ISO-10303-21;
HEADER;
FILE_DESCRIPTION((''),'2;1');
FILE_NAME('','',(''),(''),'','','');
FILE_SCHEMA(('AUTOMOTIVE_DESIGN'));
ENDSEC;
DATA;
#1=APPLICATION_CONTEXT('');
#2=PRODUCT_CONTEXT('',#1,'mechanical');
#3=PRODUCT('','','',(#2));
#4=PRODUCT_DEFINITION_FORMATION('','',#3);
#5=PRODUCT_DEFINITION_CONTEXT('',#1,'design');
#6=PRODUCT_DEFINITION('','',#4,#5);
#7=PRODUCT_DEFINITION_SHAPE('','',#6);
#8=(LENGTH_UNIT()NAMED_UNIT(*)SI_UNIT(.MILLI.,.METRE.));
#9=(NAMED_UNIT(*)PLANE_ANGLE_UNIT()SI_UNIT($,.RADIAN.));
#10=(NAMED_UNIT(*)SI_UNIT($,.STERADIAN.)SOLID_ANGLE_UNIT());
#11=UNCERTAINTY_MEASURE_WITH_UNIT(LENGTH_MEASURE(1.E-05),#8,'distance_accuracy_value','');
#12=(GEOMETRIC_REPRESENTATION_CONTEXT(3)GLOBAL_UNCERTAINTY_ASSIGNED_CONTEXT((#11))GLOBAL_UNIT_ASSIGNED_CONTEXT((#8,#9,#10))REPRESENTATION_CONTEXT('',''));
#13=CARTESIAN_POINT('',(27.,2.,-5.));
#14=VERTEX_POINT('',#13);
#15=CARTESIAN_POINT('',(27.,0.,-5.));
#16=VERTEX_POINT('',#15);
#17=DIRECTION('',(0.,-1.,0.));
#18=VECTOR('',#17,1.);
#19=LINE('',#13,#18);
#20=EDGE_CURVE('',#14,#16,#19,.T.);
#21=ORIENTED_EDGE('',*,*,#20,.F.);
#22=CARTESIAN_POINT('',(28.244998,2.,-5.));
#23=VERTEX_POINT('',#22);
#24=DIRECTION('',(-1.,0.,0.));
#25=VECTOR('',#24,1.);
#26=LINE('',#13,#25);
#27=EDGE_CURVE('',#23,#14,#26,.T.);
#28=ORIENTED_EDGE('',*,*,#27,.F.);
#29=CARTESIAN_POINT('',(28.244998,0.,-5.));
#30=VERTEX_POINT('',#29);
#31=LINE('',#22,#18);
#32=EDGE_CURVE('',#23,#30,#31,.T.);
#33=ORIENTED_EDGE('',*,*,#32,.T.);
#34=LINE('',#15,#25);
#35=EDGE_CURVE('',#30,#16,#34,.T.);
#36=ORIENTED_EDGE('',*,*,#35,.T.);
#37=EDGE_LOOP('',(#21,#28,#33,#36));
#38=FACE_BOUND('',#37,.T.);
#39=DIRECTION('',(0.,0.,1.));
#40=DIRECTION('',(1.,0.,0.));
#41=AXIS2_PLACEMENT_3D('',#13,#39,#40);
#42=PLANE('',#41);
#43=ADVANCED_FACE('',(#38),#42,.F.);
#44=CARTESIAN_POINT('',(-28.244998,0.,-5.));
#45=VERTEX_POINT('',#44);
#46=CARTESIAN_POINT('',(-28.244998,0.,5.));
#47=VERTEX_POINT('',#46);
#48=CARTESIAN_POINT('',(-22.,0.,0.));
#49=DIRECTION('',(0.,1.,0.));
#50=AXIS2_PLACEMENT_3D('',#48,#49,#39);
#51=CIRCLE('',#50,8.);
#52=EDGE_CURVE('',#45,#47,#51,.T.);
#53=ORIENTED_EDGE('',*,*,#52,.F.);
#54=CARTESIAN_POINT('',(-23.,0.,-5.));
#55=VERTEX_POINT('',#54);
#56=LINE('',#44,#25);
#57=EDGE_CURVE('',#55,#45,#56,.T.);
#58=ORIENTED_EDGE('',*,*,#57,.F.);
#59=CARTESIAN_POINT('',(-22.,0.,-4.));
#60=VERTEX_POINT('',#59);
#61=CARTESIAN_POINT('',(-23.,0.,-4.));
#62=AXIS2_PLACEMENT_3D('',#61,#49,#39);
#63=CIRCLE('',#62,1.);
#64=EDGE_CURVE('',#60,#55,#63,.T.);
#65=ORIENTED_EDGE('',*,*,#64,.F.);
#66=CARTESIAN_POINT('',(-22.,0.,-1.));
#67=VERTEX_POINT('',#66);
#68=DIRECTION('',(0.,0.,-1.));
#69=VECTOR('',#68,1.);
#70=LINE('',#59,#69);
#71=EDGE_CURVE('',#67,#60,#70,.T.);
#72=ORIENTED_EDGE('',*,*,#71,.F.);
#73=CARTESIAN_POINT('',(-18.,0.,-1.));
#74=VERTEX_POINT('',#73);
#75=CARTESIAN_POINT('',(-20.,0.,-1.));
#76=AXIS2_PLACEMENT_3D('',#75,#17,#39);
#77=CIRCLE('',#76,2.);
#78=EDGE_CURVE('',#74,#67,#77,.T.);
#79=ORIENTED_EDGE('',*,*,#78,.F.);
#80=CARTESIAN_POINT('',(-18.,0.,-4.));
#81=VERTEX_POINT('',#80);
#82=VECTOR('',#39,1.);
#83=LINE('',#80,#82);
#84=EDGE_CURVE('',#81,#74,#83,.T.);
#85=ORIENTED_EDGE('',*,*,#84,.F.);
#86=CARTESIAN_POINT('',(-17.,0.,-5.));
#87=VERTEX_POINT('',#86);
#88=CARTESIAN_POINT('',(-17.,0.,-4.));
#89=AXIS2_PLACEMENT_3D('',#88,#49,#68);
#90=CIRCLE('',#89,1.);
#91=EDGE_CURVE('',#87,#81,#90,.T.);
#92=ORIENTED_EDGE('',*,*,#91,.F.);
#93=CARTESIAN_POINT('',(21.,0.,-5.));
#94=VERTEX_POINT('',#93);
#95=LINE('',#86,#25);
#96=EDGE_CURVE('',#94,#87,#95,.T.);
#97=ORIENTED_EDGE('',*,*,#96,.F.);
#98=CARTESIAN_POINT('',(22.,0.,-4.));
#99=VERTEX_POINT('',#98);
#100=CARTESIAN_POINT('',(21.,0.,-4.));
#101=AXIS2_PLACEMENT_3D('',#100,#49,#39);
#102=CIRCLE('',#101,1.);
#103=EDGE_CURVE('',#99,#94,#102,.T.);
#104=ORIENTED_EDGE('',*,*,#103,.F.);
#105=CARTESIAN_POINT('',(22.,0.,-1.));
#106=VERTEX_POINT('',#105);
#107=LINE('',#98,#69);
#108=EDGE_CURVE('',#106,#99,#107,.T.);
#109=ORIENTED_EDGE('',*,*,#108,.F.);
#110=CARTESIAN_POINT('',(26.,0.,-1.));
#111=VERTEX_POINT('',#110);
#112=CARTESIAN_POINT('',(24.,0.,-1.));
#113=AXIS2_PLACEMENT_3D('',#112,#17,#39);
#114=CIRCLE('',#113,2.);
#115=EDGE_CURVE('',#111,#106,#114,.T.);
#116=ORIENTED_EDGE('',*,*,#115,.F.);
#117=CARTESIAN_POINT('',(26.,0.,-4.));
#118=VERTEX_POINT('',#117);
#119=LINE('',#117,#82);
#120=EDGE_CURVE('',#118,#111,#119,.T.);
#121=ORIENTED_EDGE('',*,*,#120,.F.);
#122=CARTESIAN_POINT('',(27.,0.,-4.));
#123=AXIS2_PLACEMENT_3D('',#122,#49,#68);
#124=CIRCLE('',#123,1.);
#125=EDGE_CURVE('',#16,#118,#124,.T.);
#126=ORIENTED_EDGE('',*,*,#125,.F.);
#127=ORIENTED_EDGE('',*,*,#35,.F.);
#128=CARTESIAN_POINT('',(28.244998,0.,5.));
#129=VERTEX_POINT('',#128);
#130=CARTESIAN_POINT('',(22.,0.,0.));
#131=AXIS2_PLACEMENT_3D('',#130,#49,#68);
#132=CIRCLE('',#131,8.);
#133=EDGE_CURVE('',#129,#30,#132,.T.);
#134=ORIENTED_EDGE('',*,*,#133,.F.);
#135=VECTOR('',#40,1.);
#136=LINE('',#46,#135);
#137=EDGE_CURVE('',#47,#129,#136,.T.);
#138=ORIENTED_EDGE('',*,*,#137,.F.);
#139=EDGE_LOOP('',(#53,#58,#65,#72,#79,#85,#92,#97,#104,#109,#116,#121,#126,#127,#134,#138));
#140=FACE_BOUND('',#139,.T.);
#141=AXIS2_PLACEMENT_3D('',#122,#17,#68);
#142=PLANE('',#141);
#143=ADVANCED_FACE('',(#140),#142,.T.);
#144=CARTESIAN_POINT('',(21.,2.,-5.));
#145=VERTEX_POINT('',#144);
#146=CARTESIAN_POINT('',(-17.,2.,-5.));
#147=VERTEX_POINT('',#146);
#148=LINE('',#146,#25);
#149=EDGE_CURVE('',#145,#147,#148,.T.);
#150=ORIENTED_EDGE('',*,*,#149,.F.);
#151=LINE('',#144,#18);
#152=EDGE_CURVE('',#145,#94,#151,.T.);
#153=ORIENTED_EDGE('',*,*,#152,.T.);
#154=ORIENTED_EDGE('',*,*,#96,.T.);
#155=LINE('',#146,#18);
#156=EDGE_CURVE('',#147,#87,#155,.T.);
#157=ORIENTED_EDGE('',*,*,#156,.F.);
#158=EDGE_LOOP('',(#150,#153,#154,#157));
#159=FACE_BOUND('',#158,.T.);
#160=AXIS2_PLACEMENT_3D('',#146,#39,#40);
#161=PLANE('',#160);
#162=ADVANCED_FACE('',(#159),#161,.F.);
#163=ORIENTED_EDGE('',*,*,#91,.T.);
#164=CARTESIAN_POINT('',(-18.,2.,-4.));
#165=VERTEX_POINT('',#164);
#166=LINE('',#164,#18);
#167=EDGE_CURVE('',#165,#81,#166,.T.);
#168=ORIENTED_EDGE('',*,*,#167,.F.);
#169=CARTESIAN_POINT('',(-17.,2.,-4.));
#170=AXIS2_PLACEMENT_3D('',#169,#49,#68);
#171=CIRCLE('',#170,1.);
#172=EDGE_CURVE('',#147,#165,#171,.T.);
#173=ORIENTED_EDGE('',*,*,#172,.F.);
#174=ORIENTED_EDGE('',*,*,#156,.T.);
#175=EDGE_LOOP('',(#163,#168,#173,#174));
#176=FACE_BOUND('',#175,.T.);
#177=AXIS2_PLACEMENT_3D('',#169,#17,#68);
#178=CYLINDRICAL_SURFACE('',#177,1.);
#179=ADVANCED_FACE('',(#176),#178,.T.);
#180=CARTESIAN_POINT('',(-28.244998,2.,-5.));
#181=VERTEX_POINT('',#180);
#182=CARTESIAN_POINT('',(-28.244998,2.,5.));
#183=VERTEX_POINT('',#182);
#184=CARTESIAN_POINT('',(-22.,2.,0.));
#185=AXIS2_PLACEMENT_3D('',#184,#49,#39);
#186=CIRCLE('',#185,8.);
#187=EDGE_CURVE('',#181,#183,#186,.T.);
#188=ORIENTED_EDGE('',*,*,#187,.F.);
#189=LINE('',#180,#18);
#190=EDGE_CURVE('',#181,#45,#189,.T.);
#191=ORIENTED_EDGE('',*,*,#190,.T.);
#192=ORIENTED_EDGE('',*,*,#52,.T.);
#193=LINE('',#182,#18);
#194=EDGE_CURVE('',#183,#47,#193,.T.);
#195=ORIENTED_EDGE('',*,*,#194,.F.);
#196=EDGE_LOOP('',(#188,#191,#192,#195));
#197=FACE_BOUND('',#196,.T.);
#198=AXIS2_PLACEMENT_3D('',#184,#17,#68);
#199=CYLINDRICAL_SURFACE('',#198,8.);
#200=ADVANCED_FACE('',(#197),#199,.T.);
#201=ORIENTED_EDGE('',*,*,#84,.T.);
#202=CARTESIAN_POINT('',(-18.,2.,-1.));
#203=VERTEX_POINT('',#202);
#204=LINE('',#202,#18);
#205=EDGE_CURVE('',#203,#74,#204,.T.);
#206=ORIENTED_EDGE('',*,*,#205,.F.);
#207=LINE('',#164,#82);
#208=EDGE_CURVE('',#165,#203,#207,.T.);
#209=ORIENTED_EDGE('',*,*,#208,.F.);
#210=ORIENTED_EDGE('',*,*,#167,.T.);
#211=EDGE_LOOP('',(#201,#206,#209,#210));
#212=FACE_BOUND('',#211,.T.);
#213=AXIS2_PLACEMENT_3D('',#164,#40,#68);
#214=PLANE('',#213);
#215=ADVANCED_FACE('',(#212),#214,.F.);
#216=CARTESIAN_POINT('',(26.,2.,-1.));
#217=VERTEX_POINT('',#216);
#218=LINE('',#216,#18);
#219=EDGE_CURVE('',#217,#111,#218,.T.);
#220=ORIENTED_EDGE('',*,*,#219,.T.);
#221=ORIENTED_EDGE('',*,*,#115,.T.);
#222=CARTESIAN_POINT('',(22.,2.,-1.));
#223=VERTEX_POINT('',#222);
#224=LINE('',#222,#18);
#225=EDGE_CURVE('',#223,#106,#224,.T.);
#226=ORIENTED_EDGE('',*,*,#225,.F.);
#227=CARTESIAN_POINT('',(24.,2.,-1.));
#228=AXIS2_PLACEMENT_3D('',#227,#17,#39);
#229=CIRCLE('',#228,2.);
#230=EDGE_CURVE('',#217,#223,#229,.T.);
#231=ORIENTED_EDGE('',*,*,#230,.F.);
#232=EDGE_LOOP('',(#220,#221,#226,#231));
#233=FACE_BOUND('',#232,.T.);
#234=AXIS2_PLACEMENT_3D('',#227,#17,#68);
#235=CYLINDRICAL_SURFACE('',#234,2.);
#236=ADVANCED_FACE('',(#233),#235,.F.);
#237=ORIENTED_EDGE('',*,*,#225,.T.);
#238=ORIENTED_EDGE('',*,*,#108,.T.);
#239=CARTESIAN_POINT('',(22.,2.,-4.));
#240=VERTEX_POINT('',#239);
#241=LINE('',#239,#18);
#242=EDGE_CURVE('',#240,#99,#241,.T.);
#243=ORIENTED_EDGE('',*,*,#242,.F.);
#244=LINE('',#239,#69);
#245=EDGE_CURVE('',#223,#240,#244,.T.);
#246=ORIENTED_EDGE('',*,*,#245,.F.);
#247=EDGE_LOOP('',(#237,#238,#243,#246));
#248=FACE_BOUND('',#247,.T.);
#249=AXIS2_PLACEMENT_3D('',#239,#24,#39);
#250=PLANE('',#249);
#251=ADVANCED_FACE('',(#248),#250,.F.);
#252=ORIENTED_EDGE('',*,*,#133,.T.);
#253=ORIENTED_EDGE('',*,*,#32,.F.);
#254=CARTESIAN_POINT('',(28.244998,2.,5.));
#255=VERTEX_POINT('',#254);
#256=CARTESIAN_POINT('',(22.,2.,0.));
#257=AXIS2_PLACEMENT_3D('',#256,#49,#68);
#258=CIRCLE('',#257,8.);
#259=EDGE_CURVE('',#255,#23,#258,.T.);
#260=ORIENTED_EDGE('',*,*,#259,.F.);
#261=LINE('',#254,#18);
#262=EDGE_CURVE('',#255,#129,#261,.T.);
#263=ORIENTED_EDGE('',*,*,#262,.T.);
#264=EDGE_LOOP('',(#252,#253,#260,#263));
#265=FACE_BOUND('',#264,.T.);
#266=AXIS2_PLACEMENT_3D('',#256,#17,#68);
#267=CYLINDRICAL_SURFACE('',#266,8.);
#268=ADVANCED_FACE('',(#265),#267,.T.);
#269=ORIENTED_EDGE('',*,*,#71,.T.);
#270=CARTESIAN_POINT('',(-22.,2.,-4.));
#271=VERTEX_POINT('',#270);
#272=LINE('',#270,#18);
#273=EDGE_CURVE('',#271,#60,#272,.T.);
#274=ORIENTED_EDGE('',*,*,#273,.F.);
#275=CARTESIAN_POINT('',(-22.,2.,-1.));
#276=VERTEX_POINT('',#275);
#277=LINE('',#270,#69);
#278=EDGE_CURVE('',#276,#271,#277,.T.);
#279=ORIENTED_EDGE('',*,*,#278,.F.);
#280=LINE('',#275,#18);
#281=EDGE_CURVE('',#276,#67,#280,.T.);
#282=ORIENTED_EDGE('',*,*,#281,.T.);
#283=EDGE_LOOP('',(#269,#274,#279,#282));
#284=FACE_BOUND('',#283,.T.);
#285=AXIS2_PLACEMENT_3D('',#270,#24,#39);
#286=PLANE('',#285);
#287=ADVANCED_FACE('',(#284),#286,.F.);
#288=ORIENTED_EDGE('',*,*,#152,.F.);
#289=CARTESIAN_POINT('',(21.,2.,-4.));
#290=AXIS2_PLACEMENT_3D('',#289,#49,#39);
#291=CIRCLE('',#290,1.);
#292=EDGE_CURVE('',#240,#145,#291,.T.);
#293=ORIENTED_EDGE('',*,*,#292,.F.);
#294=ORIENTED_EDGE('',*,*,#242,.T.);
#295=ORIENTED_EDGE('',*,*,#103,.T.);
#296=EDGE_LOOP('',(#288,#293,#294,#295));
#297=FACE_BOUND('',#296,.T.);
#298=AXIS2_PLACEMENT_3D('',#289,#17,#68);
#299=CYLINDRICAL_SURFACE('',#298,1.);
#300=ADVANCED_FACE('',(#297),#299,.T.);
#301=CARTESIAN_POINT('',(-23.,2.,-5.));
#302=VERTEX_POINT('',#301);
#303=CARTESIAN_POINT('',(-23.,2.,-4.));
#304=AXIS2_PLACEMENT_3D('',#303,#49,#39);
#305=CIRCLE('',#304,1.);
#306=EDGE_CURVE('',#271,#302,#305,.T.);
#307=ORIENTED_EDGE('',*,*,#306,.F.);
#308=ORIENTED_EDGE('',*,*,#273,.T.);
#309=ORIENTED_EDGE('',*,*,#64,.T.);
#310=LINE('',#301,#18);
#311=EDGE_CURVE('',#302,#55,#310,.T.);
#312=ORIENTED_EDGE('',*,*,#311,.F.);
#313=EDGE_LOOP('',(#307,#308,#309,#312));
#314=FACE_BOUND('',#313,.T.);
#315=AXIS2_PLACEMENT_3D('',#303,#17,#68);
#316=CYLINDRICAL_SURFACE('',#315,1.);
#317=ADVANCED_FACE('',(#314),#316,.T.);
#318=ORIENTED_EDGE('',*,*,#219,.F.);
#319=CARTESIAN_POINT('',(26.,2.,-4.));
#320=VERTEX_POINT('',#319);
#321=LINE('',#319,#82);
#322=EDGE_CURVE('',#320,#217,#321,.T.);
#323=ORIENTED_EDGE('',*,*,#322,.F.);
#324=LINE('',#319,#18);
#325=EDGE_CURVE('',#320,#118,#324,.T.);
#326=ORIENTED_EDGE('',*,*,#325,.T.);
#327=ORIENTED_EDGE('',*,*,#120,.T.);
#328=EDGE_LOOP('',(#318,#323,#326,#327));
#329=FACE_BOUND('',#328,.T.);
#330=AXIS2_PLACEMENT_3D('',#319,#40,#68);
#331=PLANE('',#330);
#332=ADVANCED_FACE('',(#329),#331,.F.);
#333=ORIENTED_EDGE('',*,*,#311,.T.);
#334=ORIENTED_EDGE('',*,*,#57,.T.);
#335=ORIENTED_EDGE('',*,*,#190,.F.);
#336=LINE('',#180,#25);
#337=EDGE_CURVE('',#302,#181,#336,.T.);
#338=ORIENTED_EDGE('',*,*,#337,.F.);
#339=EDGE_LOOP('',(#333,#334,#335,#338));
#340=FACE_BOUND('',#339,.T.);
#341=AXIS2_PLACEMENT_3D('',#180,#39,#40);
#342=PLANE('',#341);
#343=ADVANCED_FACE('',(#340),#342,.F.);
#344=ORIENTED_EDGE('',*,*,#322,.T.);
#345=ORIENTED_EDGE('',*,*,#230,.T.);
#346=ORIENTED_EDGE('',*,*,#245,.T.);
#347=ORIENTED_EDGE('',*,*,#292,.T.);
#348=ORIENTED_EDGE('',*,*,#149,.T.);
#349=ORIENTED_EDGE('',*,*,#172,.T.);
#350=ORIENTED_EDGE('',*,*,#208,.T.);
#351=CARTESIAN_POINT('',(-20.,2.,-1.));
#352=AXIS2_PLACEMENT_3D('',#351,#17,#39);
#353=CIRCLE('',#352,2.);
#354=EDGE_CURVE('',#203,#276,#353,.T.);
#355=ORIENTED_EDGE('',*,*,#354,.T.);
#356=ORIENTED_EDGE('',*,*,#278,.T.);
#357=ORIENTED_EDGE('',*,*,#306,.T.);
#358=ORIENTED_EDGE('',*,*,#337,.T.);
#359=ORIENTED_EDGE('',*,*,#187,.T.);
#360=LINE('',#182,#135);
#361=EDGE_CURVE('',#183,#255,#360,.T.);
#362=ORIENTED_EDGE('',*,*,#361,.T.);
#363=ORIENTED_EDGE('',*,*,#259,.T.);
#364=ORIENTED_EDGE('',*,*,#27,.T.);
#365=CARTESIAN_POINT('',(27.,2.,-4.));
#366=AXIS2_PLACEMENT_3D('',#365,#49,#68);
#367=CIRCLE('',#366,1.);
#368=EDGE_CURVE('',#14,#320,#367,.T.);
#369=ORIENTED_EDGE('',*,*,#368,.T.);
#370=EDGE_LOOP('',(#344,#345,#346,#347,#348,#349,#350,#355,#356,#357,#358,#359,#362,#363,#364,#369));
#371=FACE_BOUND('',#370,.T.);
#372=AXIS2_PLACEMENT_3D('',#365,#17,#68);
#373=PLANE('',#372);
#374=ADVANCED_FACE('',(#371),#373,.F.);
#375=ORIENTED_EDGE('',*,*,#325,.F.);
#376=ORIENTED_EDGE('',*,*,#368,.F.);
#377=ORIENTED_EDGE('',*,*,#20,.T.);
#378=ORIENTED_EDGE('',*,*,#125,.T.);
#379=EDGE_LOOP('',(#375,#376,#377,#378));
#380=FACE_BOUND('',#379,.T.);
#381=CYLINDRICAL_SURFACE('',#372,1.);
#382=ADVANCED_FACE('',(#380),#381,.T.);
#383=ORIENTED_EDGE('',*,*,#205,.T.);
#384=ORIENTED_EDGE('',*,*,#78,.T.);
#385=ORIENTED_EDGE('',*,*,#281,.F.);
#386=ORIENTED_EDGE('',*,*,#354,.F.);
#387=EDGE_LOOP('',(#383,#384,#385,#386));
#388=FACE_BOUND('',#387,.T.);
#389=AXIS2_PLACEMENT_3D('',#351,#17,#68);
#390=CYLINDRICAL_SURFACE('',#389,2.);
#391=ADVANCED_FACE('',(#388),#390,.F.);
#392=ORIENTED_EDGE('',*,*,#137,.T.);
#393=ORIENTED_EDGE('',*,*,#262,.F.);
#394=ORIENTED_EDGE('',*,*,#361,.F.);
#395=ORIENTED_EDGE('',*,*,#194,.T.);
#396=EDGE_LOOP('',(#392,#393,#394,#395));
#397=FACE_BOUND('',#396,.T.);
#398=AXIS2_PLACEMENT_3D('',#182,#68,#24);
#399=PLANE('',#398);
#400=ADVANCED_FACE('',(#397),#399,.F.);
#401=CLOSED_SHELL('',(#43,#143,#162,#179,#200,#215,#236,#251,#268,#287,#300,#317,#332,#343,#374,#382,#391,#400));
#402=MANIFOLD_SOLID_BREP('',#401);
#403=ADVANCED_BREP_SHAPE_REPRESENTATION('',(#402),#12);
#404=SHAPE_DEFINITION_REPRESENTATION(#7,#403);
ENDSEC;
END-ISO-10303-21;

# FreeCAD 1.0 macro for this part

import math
import FreeCAD as App
import Part
import Sketcher
from FreeCAD import Vector
Q = App.Units.Quantity

doc = App.newDocument("Part")
body = doc.addObject("PartDesign::Body", "Body")

sketch1 = body.newObject("Sketcher::SketchObject", "Sketch")
sketch1.AttachmentSupport = (doc.getObject("XZ_Plane"), [""])
sketch1.MapMode = "FlatFace"
sketch1.addGeometry([
    Part.LineSegment(Vector(-23, -5, 0), Vector(-28.244998, -5, 0)),
    Part.ArcOfCircle(Part.Circle(Vector(-22, 0, 0), Vector(0, 0, 1), 8), math.radians(141.317813), math.radians(218.682187)),
    Part.LineSegment(Vector(-28.244998, 5, 0), Vector(28.244998, 5, 0)),
    Part.ArcOfCircle(Part.Circle(Vector(22, 0, 0), Vector(0, 0, 1), 8), math.radians(-38.682187), math.radians(38.682187)),
    Part.LineSegment(Vector(28.244998, -5, 0), Vector(27, -5, 0)),
    Part.ArcOfCircle(Part.Circle(Vector(27, -4, 0), Vector(0, 0, 1), 1), math.radians(-180), math.radians(-90)),
    Part.LineSegment(Vector(26, -4, 0), Vector(26, -1, 0)),
    Part.ArcOfCircle(Part.Circle(Vector(24, -1, 0), Vector(0, 0, 1), 2), math.radians(0), math.radians(180)),
    Part.LineSegment(Vector(22, -1, 0), Vector(22, -4, 0)),
    Part.ArcOfCircle(Part.Circle(Vector(21, -4, 0), Vector(0, 0, 1), 1), math.radians(-90), math.radians(0)),
    Part.LineSegment(Vector(21, -5, 0), Vector(-17, -5, 0)),
    Part.ArcOfCircle(Part.Circle(Vector(-17, -4, 0), Vector(0, 0, 1), 1), math.radians(-180), math.radians(-90)),
    Part.LineSegment(Vector(-18, -4, 0), Vector(-18, -1, 0)),
    Part.ArcOfCircle(Part.Circle(Vector(-20, -1, 0), Vector(0, 0, 1), 2), math.radians(0), math.radians(180)),
    Part.LineSegment(Vector(-22, -1, 0), Vector(-22, -4, 0)),
    Part.ArcOfCircle(Part.Circle(Vector(-23, -4, 0), Vector(0, 0, 1), 1), math.radians(-90), math.radians(0)),
], False)
sketch1.addConstraint([
    Sketcher.Constraint("Coincident", 0, 2, 1, 2),
    Sketcher.Constraint("Coincident", 1, 1, 2, 1),
    Sketcher.Constraint("Coincident", 2, 2, 3, 2),
    Sketcher.Constraint("Coincident", 3, 1, 4, 1),
    Sketcher.Constraint("Tangent", 4, 2, 5, 2),
    Sketcher.Constraint("Tangent", 5, 1, 6, 1),
    Sketcher.Constraint("Tangent", 6, 2, 7, 1),
    Sketcher.Constraint("Tangent", 7, 2, 8, 1),
    Sketcher.Constraint("Tangent", 8, 2, 9, 2),
    Sketcher.Constraint("Tangent", 9, 1, 10, 1),
    Sketcher.Constraint("Tangent", 10, 2, 11, 2),
    Sketcher.Constraint("Tangent", 11, 1, 12, 1),
    Sketcher.Constraint("Tangent", 12, 2, 13, 1),
    Sketcher.Constraint("Tangent", 13, 2, 14, 1),
    Sketcher.Constraint("Tangent", 14, 2, 15, 2),
    Sketcher.Constraint("Tangent", 15, 1, 0, 1),
    Sketcher.Constraint("Horizontal", 0),
    Sketcher.Constraint("Horizontal", 2),
    Sketcher.Constraint("Horizontal", 4),
    Sketcher.Constraint("Vertical", 6),
    Sketcher.Constraint("Vertical", 8),
    Sketcher.Constraint("Horizontal", 10),
    Sketcher.Constraint("Vertical", 12),
    Sketcher.Constraint("Vertical", 14),
    Sketcher.Constraint("Equal", 1, 3),
    Sketcher.Constraint("Equal", 5, 9),
    Sketcher.Constraint("Equal", 9, 11),
    Sketcher.Constraint("Equal", 7, 13),
    Sketcher.Constraint("Equal", 11, 15),
    Sketcher.Constraint("Symmetric", 1, 3, 3, 3, -1, 1),
    Sketcher.Constraint("Symmetric", 0, 2, 3, 1, -2),
    Sketcher.Constraint("Symmetric", 7, 2, 13, 2, -2),
    Sketcher.Constraint("Horizontal", 5, 3, 9, 3),
    Sketcher.Constraint("Vertical", 0, 2, 1, 1),
    Sketcher.Constraint("Vertical", 3, 3, 7, 2),
    Sketcher.Constraint("Radius", 1, Q("8 mm")),
    Sketcher.Constraint("Radius", 5, Q("1 mm")),
    Sketcher.Constraint("Radius", 7, Q("2 mm")),
    Sketcher.Constraint("DistanceX", 10, 2, 10, 1, Q("38 mm")),
    Sketcher.Constraint("DistanceY", 6, 1, 6, 2, Q("3 mm")),
    Sketcher.Constraint("DistanceY", 5, 3, -1, 1, Q("4 mm")),
])
pad1 = body.newObject("PartDesign::Pad", "Pad")
pad1.Profile = sketch1
pad1.Length = 2
pad1.Reversed = True

doc.recompute()
